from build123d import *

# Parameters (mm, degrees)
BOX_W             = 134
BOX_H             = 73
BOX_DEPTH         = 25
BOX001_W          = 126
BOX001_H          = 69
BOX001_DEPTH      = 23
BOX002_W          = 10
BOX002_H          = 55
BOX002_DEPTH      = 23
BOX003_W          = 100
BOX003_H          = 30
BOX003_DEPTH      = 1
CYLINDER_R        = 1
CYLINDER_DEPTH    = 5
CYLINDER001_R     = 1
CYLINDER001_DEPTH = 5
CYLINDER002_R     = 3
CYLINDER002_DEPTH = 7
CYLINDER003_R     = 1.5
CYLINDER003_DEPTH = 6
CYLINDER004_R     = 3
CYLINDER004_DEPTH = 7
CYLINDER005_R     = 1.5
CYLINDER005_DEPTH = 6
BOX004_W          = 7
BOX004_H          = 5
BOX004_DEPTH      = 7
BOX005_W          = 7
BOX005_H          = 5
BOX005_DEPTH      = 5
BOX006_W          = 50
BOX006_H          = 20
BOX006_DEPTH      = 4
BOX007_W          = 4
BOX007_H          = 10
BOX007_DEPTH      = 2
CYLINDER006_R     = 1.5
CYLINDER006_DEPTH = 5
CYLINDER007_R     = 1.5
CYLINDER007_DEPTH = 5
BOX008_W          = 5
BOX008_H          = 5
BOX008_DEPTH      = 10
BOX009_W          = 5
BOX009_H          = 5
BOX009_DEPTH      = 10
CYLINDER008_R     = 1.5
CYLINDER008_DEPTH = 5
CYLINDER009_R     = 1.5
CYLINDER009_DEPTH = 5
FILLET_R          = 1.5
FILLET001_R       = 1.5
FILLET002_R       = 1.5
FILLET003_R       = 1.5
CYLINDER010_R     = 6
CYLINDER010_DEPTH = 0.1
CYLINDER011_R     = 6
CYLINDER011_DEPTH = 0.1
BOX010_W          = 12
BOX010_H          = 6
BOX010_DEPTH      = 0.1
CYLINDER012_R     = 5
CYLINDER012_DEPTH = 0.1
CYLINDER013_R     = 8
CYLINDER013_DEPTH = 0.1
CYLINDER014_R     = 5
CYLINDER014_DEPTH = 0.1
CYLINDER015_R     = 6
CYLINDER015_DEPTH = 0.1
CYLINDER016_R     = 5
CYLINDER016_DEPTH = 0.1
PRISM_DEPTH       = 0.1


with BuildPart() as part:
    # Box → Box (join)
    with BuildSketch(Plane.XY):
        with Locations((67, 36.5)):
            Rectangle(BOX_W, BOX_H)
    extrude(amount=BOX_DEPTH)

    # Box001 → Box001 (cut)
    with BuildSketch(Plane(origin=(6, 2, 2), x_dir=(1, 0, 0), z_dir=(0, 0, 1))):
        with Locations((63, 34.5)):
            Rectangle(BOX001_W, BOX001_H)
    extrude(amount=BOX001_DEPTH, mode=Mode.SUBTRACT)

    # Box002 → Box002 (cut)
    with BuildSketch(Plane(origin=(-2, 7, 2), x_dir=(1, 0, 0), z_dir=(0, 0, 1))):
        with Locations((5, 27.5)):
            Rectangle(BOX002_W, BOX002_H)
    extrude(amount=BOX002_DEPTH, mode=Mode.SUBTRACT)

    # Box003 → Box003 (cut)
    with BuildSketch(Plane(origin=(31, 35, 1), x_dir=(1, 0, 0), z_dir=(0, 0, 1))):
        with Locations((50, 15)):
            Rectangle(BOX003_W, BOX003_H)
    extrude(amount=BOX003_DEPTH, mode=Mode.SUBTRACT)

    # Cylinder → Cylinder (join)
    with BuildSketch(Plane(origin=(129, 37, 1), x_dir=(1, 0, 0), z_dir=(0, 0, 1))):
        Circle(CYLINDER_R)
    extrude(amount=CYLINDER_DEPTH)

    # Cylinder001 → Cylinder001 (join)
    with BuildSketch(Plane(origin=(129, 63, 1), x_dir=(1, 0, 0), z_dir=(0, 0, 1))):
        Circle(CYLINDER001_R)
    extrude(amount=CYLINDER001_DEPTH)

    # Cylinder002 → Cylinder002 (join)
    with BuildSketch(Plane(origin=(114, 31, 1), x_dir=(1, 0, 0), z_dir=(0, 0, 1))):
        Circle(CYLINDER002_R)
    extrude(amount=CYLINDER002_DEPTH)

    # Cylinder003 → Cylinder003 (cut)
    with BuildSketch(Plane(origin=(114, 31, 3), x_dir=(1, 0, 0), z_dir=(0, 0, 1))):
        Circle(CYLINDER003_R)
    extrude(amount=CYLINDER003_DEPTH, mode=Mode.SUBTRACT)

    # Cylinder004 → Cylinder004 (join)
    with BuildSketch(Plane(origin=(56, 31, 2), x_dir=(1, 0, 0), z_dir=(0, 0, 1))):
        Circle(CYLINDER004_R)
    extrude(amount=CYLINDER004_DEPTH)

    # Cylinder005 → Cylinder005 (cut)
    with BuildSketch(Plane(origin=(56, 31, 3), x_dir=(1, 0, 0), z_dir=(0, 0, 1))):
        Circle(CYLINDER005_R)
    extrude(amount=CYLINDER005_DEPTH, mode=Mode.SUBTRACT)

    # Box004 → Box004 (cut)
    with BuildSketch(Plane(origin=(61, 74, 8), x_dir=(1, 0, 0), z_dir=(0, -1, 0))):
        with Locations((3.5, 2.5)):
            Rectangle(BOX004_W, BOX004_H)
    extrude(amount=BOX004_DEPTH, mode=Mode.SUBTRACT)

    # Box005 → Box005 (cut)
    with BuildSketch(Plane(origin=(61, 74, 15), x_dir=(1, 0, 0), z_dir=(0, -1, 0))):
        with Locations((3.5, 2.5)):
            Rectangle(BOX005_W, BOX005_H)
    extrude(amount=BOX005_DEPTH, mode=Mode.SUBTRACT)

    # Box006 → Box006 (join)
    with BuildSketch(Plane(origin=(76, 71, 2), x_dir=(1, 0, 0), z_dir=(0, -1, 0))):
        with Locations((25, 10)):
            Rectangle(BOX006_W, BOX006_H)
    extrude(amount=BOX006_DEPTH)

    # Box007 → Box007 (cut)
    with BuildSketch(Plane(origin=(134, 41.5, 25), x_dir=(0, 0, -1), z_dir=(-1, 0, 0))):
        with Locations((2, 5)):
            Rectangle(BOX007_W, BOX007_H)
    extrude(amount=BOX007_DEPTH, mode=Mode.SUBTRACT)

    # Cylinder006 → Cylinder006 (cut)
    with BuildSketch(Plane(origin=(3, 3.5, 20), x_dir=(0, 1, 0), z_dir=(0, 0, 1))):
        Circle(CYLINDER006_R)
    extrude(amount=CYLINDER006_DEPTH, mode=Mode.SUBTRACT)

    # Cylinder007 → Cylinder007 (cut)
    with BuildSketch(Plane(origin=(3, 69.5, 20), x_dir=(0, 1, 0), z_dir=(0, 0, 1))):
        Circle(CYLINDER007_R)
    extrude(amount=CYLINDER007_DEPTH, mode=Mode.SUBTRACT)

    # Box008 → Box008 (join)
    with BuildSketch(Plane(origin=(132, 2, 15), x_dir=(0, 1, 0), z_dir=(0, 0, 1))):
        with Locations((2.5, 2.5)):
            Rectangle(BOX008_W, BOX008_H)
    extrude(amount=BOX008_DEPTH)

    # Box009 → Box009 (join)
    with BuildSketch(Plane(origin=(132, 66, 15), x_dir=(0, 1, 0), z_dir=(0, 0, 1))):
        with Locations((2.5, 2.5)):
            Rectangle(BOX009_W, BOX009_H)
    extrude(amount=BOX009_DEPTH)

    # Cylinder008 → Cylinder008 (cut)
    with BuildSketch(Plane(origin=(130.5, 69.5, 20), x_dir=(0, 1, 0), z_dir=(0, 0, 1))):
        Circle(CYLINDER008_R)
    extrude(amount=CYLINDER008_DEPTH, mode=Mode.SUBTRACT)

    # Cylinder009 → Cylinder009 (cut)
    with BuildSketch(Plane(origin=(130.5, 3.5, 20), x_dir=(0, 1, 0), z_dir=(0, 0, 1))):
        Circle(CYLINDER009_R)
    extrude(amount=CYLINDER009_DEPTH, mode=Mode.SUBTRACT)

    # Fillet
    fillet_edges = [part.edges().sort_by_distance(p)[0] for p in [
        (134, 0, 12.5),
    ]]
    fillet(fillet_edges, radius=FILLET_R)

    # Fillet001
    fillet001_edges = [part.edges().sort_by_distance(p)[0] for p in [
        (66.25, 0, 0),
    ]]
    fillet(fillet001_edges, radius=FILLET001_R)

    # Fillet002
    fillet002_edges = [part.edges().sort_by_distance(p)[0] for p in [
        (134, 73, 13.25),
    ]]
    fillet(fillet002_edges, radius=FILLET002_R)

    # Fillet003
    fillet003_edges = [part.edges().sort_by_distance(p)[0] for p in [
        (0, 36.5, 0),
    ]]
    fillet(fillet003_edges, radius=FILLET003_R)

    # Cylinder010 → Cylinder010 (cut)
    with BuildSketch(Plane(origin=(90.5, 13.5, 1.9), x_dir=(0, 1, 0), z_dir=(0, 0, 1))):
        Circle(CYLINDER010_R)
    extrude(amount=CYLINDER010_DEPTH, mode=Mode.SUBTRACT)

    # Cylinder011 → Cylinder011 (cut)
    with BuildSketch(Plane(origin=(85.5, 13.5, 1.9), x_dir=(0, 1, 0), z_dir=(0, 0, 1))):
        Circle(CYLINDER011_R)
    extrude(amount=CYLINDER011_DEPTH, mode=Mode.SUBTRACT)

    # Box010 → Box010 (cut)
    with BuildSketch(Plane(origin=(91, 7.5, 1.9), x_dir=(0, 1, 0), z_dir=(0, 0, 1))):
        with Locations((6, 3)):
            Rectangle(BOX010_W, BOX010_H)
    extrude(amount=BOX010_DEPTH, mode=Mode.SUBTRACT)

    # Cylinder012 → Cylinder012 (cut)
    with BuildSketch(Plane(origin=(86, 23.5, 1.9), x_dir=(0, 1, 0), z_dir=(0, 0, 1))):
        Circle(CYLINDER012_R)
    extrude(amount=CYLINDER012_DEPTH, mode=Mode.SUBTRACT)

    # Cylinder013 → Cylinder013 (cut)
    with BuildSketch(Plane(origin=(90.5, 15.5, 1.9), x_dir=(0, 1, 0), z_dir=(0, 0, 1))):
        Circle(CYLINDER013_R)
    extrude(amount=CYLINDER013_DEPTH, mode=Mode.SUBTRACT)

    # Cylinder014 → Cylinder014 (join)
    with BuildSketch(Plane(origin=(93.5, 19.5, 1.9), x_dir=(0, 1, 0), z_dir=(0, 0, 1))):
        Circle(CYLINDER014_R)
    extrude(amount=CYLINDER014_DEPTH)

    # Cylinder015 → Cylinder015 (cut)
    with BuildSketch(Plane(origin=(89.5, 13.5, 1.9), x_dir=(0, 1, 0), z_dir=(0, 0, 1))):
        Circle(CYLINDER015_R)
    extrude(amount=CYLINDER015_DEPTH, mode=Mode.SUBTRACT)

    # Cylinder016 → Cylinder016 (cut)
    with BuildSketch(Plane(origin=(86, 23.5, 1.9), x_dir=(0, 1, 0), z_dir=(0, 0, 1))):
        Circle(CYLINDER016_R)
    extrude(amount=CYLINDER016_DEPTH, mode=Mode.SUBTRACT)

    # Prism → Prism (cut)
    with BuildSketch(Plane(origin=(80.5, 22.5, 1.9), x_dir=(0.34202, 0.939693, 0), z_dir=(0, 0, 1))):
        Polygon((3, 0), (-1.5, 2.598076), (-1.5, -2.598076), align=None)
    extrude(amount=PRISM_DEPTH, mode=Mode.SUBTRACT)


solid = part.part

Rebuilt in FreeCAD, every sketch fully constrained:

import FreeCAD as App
import Part
import Sketcher

V = App.Vector
Q = App.Units.Quantity


def edges_at(feature, points):
    """Names of the edges that pass closest to the given points."""
    edges = feature.Shape.Edges
    near = lambda p: min(range(len(edges)), key=lambda i: edges[i].distToShape(Part.Vertex(*p))[0])
    return sorted({f"Edge{near(p) + 1}" for p in points})


def add_polygon(sketch, points):
    """Adds a closed chain of lines whose ends are joined by coincident constraints."""
    first, n = sketch.GeometryCount, len(points)
    for a, b in zip(points, points[1:] + points[:1]):
        sketch.addGeometry(Part.LineSegment(App.Vector(*a, 0), App.Vector(*b, 0)), False)
    for i in range(n):
        sketch.addConstraint(Sketcher.Constraint("Coincident", first + i, 2, first + (i + 1) % n, 1))

doc = App.newDocument("Part")
body = doc.addObject("PartDesign::Body", "Body")

sketch1 = doc.addObject("Sketcher::SketchObject", "Sketch")
body.addObject(sketch1)
sketch1.AttachmentSupport = (doc.XY_Plane, [""])
sketch1.MapMode = "FlatFace"
add_polygon(sketch1, [(0, 73), (0, 0), (134, 0), (134, 73)])
sketch1.addConstraint(Sketcher.Constraint("Vertical", 0))
sketch1.addConstraint(Sketcher.Constraint("Horizontal", 1))
sketch1.addConstraint(Sketcher.Constraint("Vertical", 2))
sketch1.addConstraint(Sketcher.Constraint("Horizontal", 3))
sketch1.addConstraint(Sketcher.Constraint("Coincident", 0, 2, -1, 1))
sketch1.addConstraint(Sketcher.Constraint("DistanceX", 1, 1, 1, 2, 134.0))
sketch1.addConstraint(Sketcher.Constraint("DistanceY", 0, 2, 0, 1, 73.0))
pad1 = doc.addObject("PartDesign::Pad", "Pad")
body.addObject(pad1)
pad1.Profile = sketch1
pad1.Length = 25

sketch2 = doc.addObject("Sketcher::SketchObject", "Sketch001")
body.addObject(sketch2)
sketch2.AttachmentSupport = (doc.XY_Plane, [""])
sketch2.MapMode = "FlatFace"
sketch2.AttachmentOffset = App.Placement(V(0, 0, 2), App.Rotation())
add_polygon(sketch2, [(6, 71), (6, 2), (132, 2), (132, 71)])
sketch2.addConstraint(Sketcher.Constraint("Vertical", 0))
sketch2.addConstraint(Sketcher.Constraint("Horizontal", 1))
sketch2.addConstraint(Sketcher.Constraint("Vertical", 2))
sketch2.addConstraint(Sketcher.Constraint("Horizontal", 3))
sketch2.addConstraint(Sketcher.Constraint("DistanceX", 1, 1, 1, 2, 126.0))
sketch2.addConstraint(Sketcher.Constraint("DistanceY", 0, 2, 0, 1, 69.0))
sketch2.addConstraint(Sketcher.Constraint("DistanceX", -1, 1, 0, 2, 6.0))
sketch2.addConstraint(Sketcher.Constraint("DistanceY", -1, 1, 0, 2, 2.0))
pocket1 = doc.addObject("PartDesign::Pocket", "Pocket")
body.addObject(pocket1)
pocket1.Profile = sketch2
pocket1.Length = 23
pocket1.Reversed = True

sketch3 = doc.addObject("Sketcher::SketchObject", "Sketch002")
body.addObject(sketch3)
sketch3.AttachmentSupport = (doc.XY_Plane, [""])
sketch3.MapMode = "FlatFace"
sketch3.AttachmentOffset = App.Placement(V(0, 0, 2), App.Rotation())
add_polygon(sketch3, [(-2, 62), (-2, 7), (8, 7), (8, 62)])
sketch3.addConstraint(Sketcher.Constraint("Vertical", 0))
sketch3.addConstraint(Sketcher.Constraint("Horizontal", 1))
sketch3.addConstraint(Sketcher.Constraint("Vertical", 2))
sketch3.addConstraint(Sketcher.Constraint("Horizontal", 3))
sketch3.addConstraint(Sketcher.Constraint("DistanceX", 1, 1, 1, 2, 10.0))
sketch3.addConstraint(Sketcher.Constraint("DistanceY", 0, 2, 0, 1, 55.0))
sketch3.addConstraint(Sketcher.Constraint("DistanceX", 0, 2, -1, 1, 2.0))
sketch3.addConstraint(Sketcher.Constraint("DistanceY", -1, 1, 0, 2, 7.0))
pocket2 = doc.addObject("PartDesign::Pocket", "Pocket001")
body.addObject(pocket2)
pocket2.Profile = sketch3
pocket2.Length = 23
pocket2.Reversed = True

sketch4 = doc.addObject("Sketcher::SketchObject", "Sketch003")
body.addObject(sketch4)
sketch4.AttachmentSupport = (doc.XY_Plane, [""])
sketch4.MapMode = "FlatFace"
sketch4.AttachmentOffset = App.Placement(V(0, 0, 1), App.Rotation())
add_polygon(sketch4, [(31, 65), (31, 35), (131, 35), (131, 65)])
sketch4.addConstraint(Sketcher.Constraint("Vertical", 0))
sketch4.addConstraint(Sketcher.Constraint("Horizontal", 1))
sketch4.addConstraint(Sketcher.Constraint("Vertical", 2))
sketch4.addConstraint(Sketcher.Constraint("Horizontal", 3))
sketch4.addConstraint(Sketcher.Constraint("DistanceX", 1, 1, 1, 2, 100.0))
sketch4.addConstraint(Sketcher.Constraint("DistanceY", 0, 2, 0, 1, 30.0))
sketch4.addConstraint(Sketcher.Constraint("DistanceX", -1, 1, 0, 2, 31.0))
sketch4.addConstraint(Sketcher.Constraint("DistanceY", -1, 1, 0, 2, 35.0))
pocket3 = doc.addObject("PartDesign::Pocket", "Pocket002")
body.addObject(pocket3)
pocket3.Profile = sketch4
pocket3.Length = 1
pocket3.Reversed = True

sketch5 = doc.addObject("Sketcher::SketchObject", "Sketch004")
body.addObject(sketch5)
sketch5.AttachmentSupport = (doc.XY_Plane, [""])
sketch5.MapMode = "FlatFace"
sketch5.AttachmentOffset = App.Placement(V(0, 0, 1), App.Rotation())
sketch5.addGeometry(Part.Circle(V(129, 37, 0), V(0, 0, 1), 1), False)
sketch5.addConstraint(Sketcher.Constraint("Diameter", 0, 2.0))
sketch5.addConstraint(Sketcher.Constraint("DistanceX", -1, 1, 0, 3, 129.0))
sketch5.addConstraint(Sketcher.Constraint("DistanceY", -1, 1, 0, 3, 37.0))
pad2 = doc.addObject("PartDesign::Pad", "Pad001")
body.addObject(pad2)
pad2.Profile = sketch5
pad2.Length = 5

sketch6 = doc.addObject("Sketcher::SketchObject", "Sketch005")
body.addObject(sketch6)
sketch6.AttachmentSupport = (doc.XY_Plane, [""])
sketch6.MapMode = "FlatFace"
sketch6.AttachmentOffset = App.Placement(V(0, 0, 1), App.Rotation())
sketch6.addGeometry(Part.Circle(V(129, 63, 0), V(0, 0, 1), 1), False)
sketch6.addConstraint(Sketcher.Constraint("Diameter", 0, 2.0))
sketch6.addConstraint(Sketcher.Constraint("DistanceX", -1, 1, 0, 3, 129.0))
sketch6.addConstraint(Sketcher.Constraint("DistanceY", -1, 1, 0, 3, 63.0))
pad3 = doc.addObject("PartDesign::Pad", "Pad002")
body.addObject(pad3)
pad3.Profile = sketch6
pad3.Length = 5

sketch7 = doc.addObject("Sketcher::SketchObject", "Sketch006")
body.addObject(sketch7)
sketch7.AttachmentSupport = (doc.XY_Plane, [""])
sketch7.MapMode = "FlatFace"
sketch7.AttachmentOffset = App.Placement(V(0, 0, 1), App.Rotation())
sketch7.addGeometry(Part.Circle(V(114, 31, 0), V(0, 0, 1), 3), False)
sketch7.addConstraint(Sketcher.Constraint("Diameter", 0, 6.0))
sketch7.addConstraint(Sketcher.Constraint("DistanceX", -1, 1, 0, 3, 114.0))
sketch7.addConstraint(Sketcher.Constraint("DistanceY", -1, 1, 0, 3, 31.0))
pad4 = doc.addObject("PartDesign::Pad", "Pad003")
body.addObject(pad4)
pad4.Profile = sketch7
pad4.Length = 7

sketch8 = doc.addObject("Sketcher::SketchObject", "Sketch007")
body.addObject(sketch8)
sketch8.AttachmentSupport = (doc.XY_Plane, [""])
sketch8.MapMode = "FlatFace"
sketch8.AttachmentOffset = App.Placement(V(0, 0, 3), App.Rotation())
sketch8.addGeometry(Part.Circle(V(114, 31, 0), V(0, 0, 1), 1.5), False)
sketch8.addConstraint(Sketcher.Constraint("Diameter", 0, 3.0))
sketch8.addConstraint(Sketcher.Constraint("DistanceX", -1, 1, 0, 3, 114.0))
sketch8.addConstraint(Sketcher.Constraint("DistanceY", -1, 1, 0, 3, 31.0))
pocket4 = doc.addObject("PartDesign::Pocket", "Pocket003")
body.addObject(pocket4)
pocket4.Profile = sketch8
pocket4.Length = 6
pocket4.Reversed = True

sketch9 = doc.addObject("Sketcher::SketchObject", "Sketch008")
body.addObject(sketch9)
sketch9.AttachmentSupport = (doc.XY_Plane, [""])
sketch9.MapMode = "FlatFace"
sketch9.AttachmentOffset = App.Placement(V(0, 0, 2), App.Rotation())
sketch9.addGeometry(Part.Circle(V(56, 31, 0), V(0, 0, 1), 3), False)
sketch9.addConstraint(Sketcher.Constraint("Diameter", 0, 6.0))
sketch9.addConstraint(Sketcher.Constraint("DistanceX", -1, 1, 0, 3, 56.0))
sketch9.addConstraint(Sketcher.Constraint("DistanceY", -1, 1, 0, 3, 31.0))
pad5 = doc.addObject("PartDesign::Pad", "Pad004")
body.addObject(pad5)
pad5.Profile = sketch9
pad5.Length = 7

sketch10 = doc.addObject("Sketcher::SketchObject", "Sketch009")
body.addObject(sketch10)
sketch10.AttachmentSupport = (doc.XY_Plane, [""])
sketch10.MapMode = "FlatFace"
sketch10.AttachmentOffset = App.Placement(V(0, 0, 3), App.Rotation())
sketch10.addGeometry(Part.Circle(V(56, 31, 0), V(0, 0, 1), 1.5), False)
sketch10.addConstraint(Sketcher.Constraint("Diameter", 0, 3.0))
sketch10.addConstraint(Sketcher.Constraint("DistanceX", -1, 1, 0, 3, 56.0))
sketch10.addConstraint(Sketcher.Constraint("DistanceY", -1, 1, 0, 3, 31.0))
pocket5 = doc.addObject("PartDesign::Pocket", "Pocket004")
body.addObject(pocket5)
pocket5.Profile = sketch10
pocket5.Length = 6
pocket5.Reversed = True

sketch11 = doc.addObject("Sketcher::SketchObject", "Sketch010")
body.addObject(sketch11)
sketch11.AttachmentSupport = (doc.XZ_Plane, [""])
sketch11.MapMode = "FlatFace"
sketch11.AttachmentOffset = App.Placement(V(0, 0, -74), App.Rotation())
add_polygon(sketch11, [(61, 13), (61, 8), (68, 8), (68, 13)])
sketch11.addConstraint(Sketcher.Constraint("Vertical", 0))
sketch11.addConstraint(Sketcher.Constraint("Horizontal", 1))
sketch11.addConstraint(Sketcher.Constraint("Vertical", 2))
sketch11.addConstraint(Sketcher.Constraint("Horizontal", 3))
sketch11.addConstraint(Sketcher.Constraint("DistanceX", 1, 1, 1, 2, 7.0))
sketch11.addConstraint(Sketcher.Constraint("DistanceY", 0, 2, 0, 1, 5.0))
sketch11.addConstraint(Sketcher.Constraint("DistanceX", -1, 1, 0, 2, 61.0))
sketch11.addConstraint(Sketcher.Constraint("DistanceY", -1, 1, 0, 2, 8.0))
pocket6 = doc.addObject("PartDesign::Pocket", "Pocket005")
body.addObject(pocket6)
pocket6.Profile = sketch11
pocket6.Length = 7
pocket6.Reversed = True

sketch12 = doc.addObject("Sketcher::SketchObject", "Sketch011")
body.addObject(sketch12)
sketch12.AttachmentSupport = (doc.XZ_Plane, [""])
sketch12.MapMode = "FlatFace"
sketch12.AttachmentOffset = App.Placement(V(0, 0, -74), App.Rotation())
add_polygon(sketch12, [(61, 20), (61, 15), (68, 15), (68, 20)])
sketch12.addConstraint(Sketcher.Constraint("Vertical", 0))
sketch12.addConstraint(Sketcher.Constraint("Horizontal", 1))
sketch12.addConstraint(Sketcher.Constraint("Vertical", 2))
sketch12.addConstraint(Sketcher.Constraint("Horizontal", 3))
sketch12.addConstraint(Sketcher.Constraint("DistanceX", 1, 1, 1, 2, 7.0))
sketch12.addConstraint(Sketcher.Constraint("DistanceY", 0, 2, 0, 1, 5.0))
sketch12.addConstraint(Sketcher.Constraint("DistanceX", -1, 1, 0, 2, 61.0))
sketch12.addConstraint(Sketcher.Constraint("DistanceY", -1, 1, 0, 2, 15.0))
pocket7 = doc.addObject("PartDesign::Pocket", "Pocket006")
body.addObject(pocket7)
pocket7.Profile = sketch12
pocket7.Length = 5
pocket7.Reversed = True

sketch13 = doc.addObject("Sketcher::SketchObject", "Sketch012")
body.addObject(sketch13)
sketch13.AttachmentSupport = (doc.XZ_Plane, [""])
sketch13.MapMode = "FlatFace"
sketch13.AttachmentOffset = App.Placement(V(0, 0, -71), App.Rotation())
add_polygon(sketch13, [(76, 22), (76, 2), (126, 2), (126, 22)])
sketch13.addConstraint(Sketcher.Constraint("Vertical", 0))
sketch13.addConstraint(Sketcher.Constraint("Horizontal", 1))
sketch13.addConstraint(Sketcher.Constraint("Vertical", 2))
sketch13.addConstraint(Sketcher.Constraint("Horizontal", 3))
sketch13.addConstraint(Sketcher.Constraint("DistanceX", 1, 1, 1, 2, 50.0))
sketch13.addConstraint(Sketcher.Constraint("DistanceY", 0, 2, 0, 1, 20.0))
sketch13.addConstraint(Sketcher.Constraint("DistanceX", -1, 1, 0, 2, 76.0))
sketch13.addConstraint(Sketcher.Constraint("DistanceY", -1, 1, 0, 2, 2.0))
pad6 = doc.addObject("PartDesign::Pad", "Pad005")
body.addObject(pad6)
pad6.Profile = sketch13
pad6.Length = 4

sketch14 = doc.addObject("Sketcher::SketchObject", "Sketch013")
body.addObject(sketch14)
sketch14.AttachmentSupport = (doc.YZ_Plane, [""])
sketch14.MapMode = "FlatFace"
sketch14.AttachmentOffset = App.Placement(V(0, 0, 134), App.Rotation())
add_polygon(sketch14, [(31.5, 25), (41.5, 25), (41.5, 21), (31.5, 21)])
sketch14.addConstraint(Sketcher.Constraint("Horizontal", 0))
sketch14.addConstraint(Sketcher.Constraint("Vertical", 1))
sketch14.addConstraint(Sketcher.Constraint("Horizontal", 2))
sketch14.addConstraint(Sketcher.Constraint("Vertical", 3))
sketch14.addConstraint(Sketcher.Constraint("DistanceX", 0, 1, 0, 2, 10.0))
sketch14.addConstraint(Sketcher.Constraint("DistanceY", 1, 2, 1, 1, 4.0))
sketch14.addConstraint(Sketcher.Constraint("DistanceY", -1, 1, 0, 2, 25.0))
sketch14.addConstraint(Sketcher.Constraint("DistanceX", -1, 1, 0, 2, 41.5))
pocket8 = doc.addObject("PartDesign::Pocket", "Pocket007")
body.addObject(pocket8)
pocket8.Profile = sketch14
pocket8.Length = 2

sketch15 = doc.addObject("Sketcher::SketchObject", "Sketch014")
body.addObject(sketch15)
sketch15.AttachmentSupport = (doc.XY_Plane, [""])
sketch15.MapMode = "FlatFace"
sketch15.AttachmentOffset = App.Placement(V(0, 0, 20), App.Rotation())
sketch15.addGeometry(Part.Circle(V(3, 3.5, 0), V(0, 0, 1), 1.5), False)
sketch15.addConstraint(Sketcher.Constraint("Diameter", 0, 3.0))
sketch15.addConstraint(Sketcher.Constraint("DistanceX", -1, 1, 0, 3, 3.0))
sketch15.addConstraint(Sketcher.Constraint("DistanceY", -1, 1, 0, 3, 3.5))
pocket9 = doc.addObject("PartDesign::Pocket", "Pocket008")
body.addObject(pocket9)
pocket9.Profile = sketch15
pocket9.Length = 5
pocket9.Reversed = True

sketch16 = doc.addObject("Sketcher::SketchObject", "Sketch015")
body.addObject(sketch16)
sketch16.AttachmentSupport = (doc.XY_Plane, [""])
sketch16.MapMode = "FlatFace"
sketch16.AttachmentOffset = App.Placement(V(0, 0, 20), App.Rotation())
sketch16.addGeometry(Part.Circle(V(3, 69.5, 0), V(0, 0, 1), 1.5), False)
sketch16.addConstraint(Sketcher.Constraint("Diameter", 0, 3.0))
sketch16.addConstraint(Sketcher.Constraint("DistanceX", -1, 1, 0, 3, 3.0))
sketch16.addConstraint(Sketcher.Constraint("DistanceY", -1, 1, 0, 3, 69.5))
pocket10 = doc.addObject("PartDesign::Pocket", "Pocket009")
body.addObject(pocket10)
pocket10.Profile = sketch16
pocket10.Length = 5
pocket10.Reversed = True

sketch17 = doc.addObject("Sketcher::SketchObject", "Sketch016")
body.addObject(sketch17)
sketch17.AttachmentSupport = (doc.XY_Plane, [""])
sketch17.MapMode = "FlatFace"
sketch17.AttachmentOffset = App.Placement(V(0, 0, 15), App.Rotation())
add_polygon(sketch17, [(127, 2), (132, 2), (132, 7), (127, 7)])
sketch17.addConstraint(Sketcher.Constraint("Horizontal", 0))
sketch17.addConstraint(Sketcher.Constraint("Vertical", 1))
sketch17.addConstraint(Sketcher.Constraint("Horizontal", 2))
sketch17.addConstraint(Sketcher.Constraint("Vertical", 3))
sketch17.addConstraint(Sketcher.Constraint("Equal", 2, 1))
sketch17.addConstraint(Sketcher.Constraint("DistanceX", 0, 1, 0, 2, 5.0))
sketch17.addConstraint(Sketcher.Constraint("DistanceX", -1, 1, 0, 2, 132.0))
sketch17.addConstraint(Sketcher.Constraint("DistanceY", -1, 1, 0, 2, 2.0))
pad7 = doc.addObject("PartDesign::Pad", "Pad006")
body.addObject(pad7)
pad7.Profile = sketch17
pad7.Length = 10

sketch18 = doc.addObject("Sketcher::SketchObject", "Sketch017")
body.addObject(sketch18)
sketch18.AttachmentSupport = (doc.XY_Plane, [""])
sketch18.MapMode = "FlatFace"
sketch18.AttachmentOffset = App.Placement(V(0, 0, 15), App.Rotation())
add_polygon(sketch18, [(127, 66), (132, 66), (132, 71), (127, 71)])
sketch18.addConstraint(Sketcher.Constraint("Horizontal", 0))
sketch18.addConstraint(Sketcher.Constraint("Vertical", 1))
sketch18.addConstraint(Sketcher.Constraint("Horizontal", 2))
sketch18.addConstraint(Sketcher.Constraint("Vertical", 3))
sketch18.addConstraint(Sketcher.Constraint("Equal", 2, 1))
sketch18.addConstraint(Sketcher.Constraint("DistanceX", 0, 1, 0, 2, 5.0))
sketch18.addConstraint(Sketcher.Constraint("DistanceX", -1, 1, 0, 2, 132.0))
sketch18.addConstraint(Sketcher.Constraint("DistanceY", -1, 1, 0, 2, 66.0))
pad8 = doc.addObject("PartDesign::Pad", "Pad007")
body.addObject(pad8)
pad8.Profile = sketch18
pad8.Length = 10

sketch19 = doc.addObject("Sketcher::SketchObject", "Sketch018")
body.addObject(sketch19)
sketch19.AttachmentSupport = (doc.XY_Plane, [""])
sketch19.MapMode = "FlatFace"
sketch19.AttachmentOffset = App.Placement(V(0, 0, 20), App.Rotation())
sketch19.addGeometry(Part.Circle(V(130.5, 69.5, 0), V(0, 0, 1), 1.5), False)
sketch19.addConstraint(Sketcher.Constraint("Diameter", 0, 3.0))
sketch19.addConstraint(Sketcher.Constraint("DistanceX", -1, 1, 0, 3, 130.5))
sketch19.addConstraint(Sketcher.Constraint("DistanceY", -1, 1, 0, 3, 69.5))
pocket11 = doc.addObject("PartDesign::Pocket", "Pocket010")
body.addObject(pocket11)
pocket11.Profile = sketch19
pocket11.Length = 5
pocket11.Reversed = True

sketch20 = doc.addObject("Sketcher::SketchObject", "Sketch019")
body.addObject(sketch20)
sketch20.AttachmentSupport = (doc.XY_Plane, [""])
sketch20.MapMode = "FlatFace"
sketch20.AttachmentOffset = App.Placement(V(0, 0, 20), App.Rotation())
sketch20.addGeometry(Part.Circle(V(130.5, 3.5, 0), V(0, 0, 1), 1.5), False)
sketch20.addConstraint(Sketcher.Constraint("Diameter", 0, 3.0))
sketch20.addConstraint(Sketcher.Constraint("DistanceX", -1, 1, 0, 3, 130.5))
sketch20.addConstraint(Sketcher.Constraint("DistanceY", -1, 1, 0, 3, 3.5))
pocket12 = doc.addObject("PartDesign::Pocket", "Pocket011")
body.addObject(pocket12)
pocket12.Profile = sketch20
pocket12.Length = 5
pocket12.Reversed = True
doc.recompute()

fillet = doc.addObject("PartDesign::Fillet", "Fillet")
body.addObject(fillet)
fillet.Base = (pocket12, edges_at(pocket12, [(134, 0, 12.5)]))
fillet.Radius = 1.5
doc.recompute()

fillet2 = doc.addObject("PartDesign::Fillet", "Fillet001")
body.addObject(fillet2)
fillet2.Base = (fillet, edges_at(fillet, [(66.25, 0, 0)]))
fillet2.Radius = 1.5
doc.recompute()

fillet3 = doc.addObject("PartDesign::Fillet", "Fillet002")
body.addObject(fillet3)
fillet3.Base = (fillet2, edges_at(fillet2, [(134, 73, 13.25)]))
fillet3.Radius = 1.5
doc.recompute()

fillet4 = doc.addObject("PartDesign::Fillet", "Fillet003")
body.addObject(fillet4)
fillet4.Base = (fillet3, edges_at(fillet3, [(0, 36.5, 0)]))
fillet4.Radius = 1.5

sketch21 = doc.addObject("Sketcher::SketchObject", "Sketch020")
body.addObject(sketch21)
sketch21.AttachmentSupport = (doc.XY_Plane, [""])
sketch21.MapMode = "FlatFace"
sketch21.AttachmentOffset = App.Placement(V(0, 0, 1.9), App.Rotation())
sketch21.addGeometry(Part.Circle(V(90, 14, 0), V(0, 0, 1), 6), False)
sketch21.addConstraint(Sketcher.Constraint("Diameter", 0, 12.0))
sketch21.addConstraint(Sketcher.Constraint("DistanceX", -1, 1, 0, 3, 90.5))
sketch21.addConstraint(Sketcher.Constraint("DistanceY", -1, 1, 0, 3, 13.5))
pocket13 = doc.addObject("PartDesign::Pocket", "Pocket012")
body.addObject(pocket13)
pocket13.Profile = sketch21
pocket13.Length = 0.1
pocket13.Reversed = True

sketch22 = doc.addObject("Sketcher::SketchObject", "Sketch021")
body.addObject(sketch22)
sketch22.AttachmentSupport = (doc.XY_Plane, [""])
sketch22.MapMode = "FlatFace"
sketch22.AttachmentOffset = App.Placement(V(0, 0, 1.9), App.Rotation())
sketch22.addGeometry(Part.Circle(V(86, 14, 0), V(0, 0, 1), 6), False)
sketch22.addConstraint(Sketcher.Constraint("Diameter", 0, 12.0))
sketch22.addConstraint(Sketcher.Constraint("DistanceX", -1, 1, 0, 3, 85.5))
sketch22.addConstraint(Sketcher.Constraint("DistanceY", -1, 1, 0, 3, 13.5))
pocket14 = doc.addObject("PartDesign::Pocket", "Pocket013")
body.addObject(pocket14)
pocket14.Profile = sketch22
pocket14.Length = 0.1
pocket14.Reversed = True

sketch23 = doc.addObject("Sketcher::SketchObject", "Sketch022")
body.addObject(sketch23)
sketch23.AttachmentSupport = (doc.XY_Plane, [""])
sketch23.MapMode = "FlatFace"
sketch23.AttachmentOffset = App.Placement(V(0, 0, 1.9), App.Rotation())
add_polygon(sketch23, [(85, 8), (91, 8), (91, 20), (85, 20)])
sketch23.addConstraint(Sketcher.Constraint("Horizontal", 0))
sketch23.addConstraint(Sketcher.Constraint("Vertical", 1))
sketch23.addConstraint(Sketcher.Constraint("Horizontal", 2))
sketch23.addConstraint(Sketcher.Constraint("Vertical", 3))
sketch23.addConstraint(Sketcher.Constraint("DistanceX", 0, 1, 0, 2, 6.0))
sketch23.addConstraint(Sketcher.Constraint("DistanceY", 1, 1, 1, 2, 12.0))
sketch23.addConstraint(Sketcher.Constraint("DistanceX", -1, 1, 0, 2, 91.0))
sketch23.addConstraint(Sketcher.Constraint("DistanceY", -1, 1, 0, 2, 7.5))
pocket15 = doc.addObject("PartDesign::Pocket", "Pocket014")
body.addObject(pocket15)
pocket15.Profile = sketch23
pocket15.Length = 0.1
pocket15.Reversed = True

sketch24 = doc.addObject("Sketcher::SketchObject", "Sketch023")
body.addObject(sketch24)
sketch24.AttachmentSupport = (doc.XY_Plane, [""])
sketch24.MapMode = "FlatFace"
sketch24.AttachmentOffset = App.Placement(V(0, 0, 1.9), App.Rotation())
sketch24.addGeometry(Part.Circle(V(86, 24, 0), V(0, 0, 1), 5), False)
sketch24.addConstraint(Sketcher.Constraint("Diameter", 0, 10.0))
sketch24.addConstraint(Sketcher.Constraint("DistanceX", -1, 1, 0, 3, 86.0))
sketch24.addConstraint(Sketcher.Constraint("DistanceY", -1, 1, 0, 3, 23.5))
pocket16 = doc.addObject("PartDesign::Pocket", "Pocket015")
body.addObject(pocket16)
pocket16.Profile = sketch24
pocket16.Length = 0.1
pocket16.Reversed = True

sketch25 = doc.addObject("Sketcher::SketchObject", "Sketch024")
body.addObject(sketch25)
sketch25.AttachmentSupport = (doc.XY_Plane, [""])
sketch25.MapMode = "FlatFace"
sketch25.AttachmentOffset = App.Placement(V(0, 0, 1.9), App.Rotation())
sketch25.addGeometry(Part.Circle(V(90, 16, 0), V(0, 0, 1), 8), False)
sketch25.addConstraint(Sketcher.Constraint("Diameter", 0, 16.0))
sketch25.addConstraint(Sketcher.Constraint("DistanceX", -1, 1, 0, 3, 90.5))
sketch25.addConstraint(Sketcher.Constraint("DistanceY", -1, 1, 0, 3, 15.5))
pocket17 = doc.addObject("PartDesign::Pocket", "Pocket016")
body.addObject(pocket17)
pocket17.Profile = sketch25
pocket17.Length = 0.1
pocket17.Reversed = True

sketch26 = doc.addObject("Sketcher::SketchObject", "Sketch025")
body.addObject(sketch26)
sketch26.AttachmentSupport = (doc.XY_Plane, [""])
sketch26.MapMode = "FlatFace"
sketch26.AttachmentOffset = App.Placement(V(0, 0, 1.9), App.Rotation())
sketch26.addGeometry(Part.Circle(V(94, 20, 0), V(0, 0, 1), 5), False)
sketch26.addConstraint(Sketcher.Constraint("Diameter", 0, 10.0))
sketch26.addConstraint(Sketcher.Constraint("DistanceX", -1, 1, 0, 3, 93.5))
sketch26.addConstraint(Sketcher.Constraint("DistanceY", -1, 1, 0, 3, 19.5))
pad9 = doc.addObject("PartDesign::Pad", "Pad008")
body.addObject(pad9)
pad9.Profile = sketch26
pad9.Length = 0.1

sketch27 = doc.addObject("Sketcher::SketchObject", "Sketch026")
body.addObject(sketch27)
sketch27.AttachmentSupport = (doc.XY_Plane, [""])
sketch27.MapMode = "FlatFace"
sketch27.AttachmentOffset = App.Placement(V(0, 0, 1.9), App.Rotation())
sketch27.addGeometry(Part.Circle(V(90, 14, 0), V(0, 0, 1), 6), False)
sketch27.addConstraint(Sketcher.Constraint("Diameter", 0, 12.0))
sketch27.addConstraint(Sketcher.Constraint("DistanceX", -1, 1, 0, 3, 89.5))
sketch27.addConstraint(Sketcher.Constraint("DistanceY", -1, 1, 0, 3, 13.5))
pocket18 = doc.addObject("PartDesign::Pocket", "Pocket017")
body.addObject(pocket18)
pocket18.Profile = sketch27
pocket18.Length = 0.1
pocket18.Reversed = True

sketch28 = doc.addObject("Sketcher::SketchObject", "Sketch027")
body.addObject(sketch28)
sketch28.AttachmentSupport = (doc.XY_Plane, [""])
sketch28.MapMode = "FlatFace"
sketch28.AttachmentOffset = App.Placement(V(0, 0, 1.9), App.Rotation())
sketch28.addGeometry(Part.Circle(V(86, 24, 0), V(0, 0, 1), 5), False)
sketch28.addConstraint(Sketcher.Constraint("Diameter", 0, 10.0))
sketch28.addConstraint(Sketcher.Constraint("DistanceX", -1, 1, 0, 3, 86.0))
sketch28.addConstraint(Sketcher.Constraint("DistanceY", -1, 1, 0, 3, 23.5))
pocket19 = doc.addObject("PartDesign::Pocket", "Pocket018")
body.addObject(pocket19)
pocket19.Profile = sketch28
pocket19.Length = 0.1
pocket19.Reversed = True

sketch29 = doc.addObject("Sketcher::SketchObject", "Sketch028")
body.addObject(sketch29)
sketch29.AttachmentSupport = (doc.XY_Plane, [""])
sketch29.MapMode = "FlatFace"
sketch29.AttachmentOffset = App.Placement(V(0, 0, 1.9), App.Rotation())
add_polygon(sketch29, [(82, 25), (78, 22), (82, 20)])
sketch29.addConstraint(Sketcher.Constraint("Equal", 0, 1))
sketch29.addConstraint(Sketcher.Constraint("Equal", 1, 2))
sketch29.addConstraint(Sketcher.Constraint("Angle", 0, Q("-139.999983 deg")))
sketch29.addConstraint(Sketcher.Constraint("Distance", 1, 5.196152))
sketch29.addConstraint(Sketcher.Constraint("DistanceX", -1, 1, 2, 2, 81.52606))
sketch29.addConstraint(Sketcher.Constraint("DistanceY", -1, 1, 2, 2, 25.319078))
pocket20 = doc.addObject("PartDesign::Pocket", "Pocket019")
body.addObject(pocket20)
pocket20.Profile = sketch29
pocket20.Length = 0.1
pocket20.Reversed = True

doc.recompute()
